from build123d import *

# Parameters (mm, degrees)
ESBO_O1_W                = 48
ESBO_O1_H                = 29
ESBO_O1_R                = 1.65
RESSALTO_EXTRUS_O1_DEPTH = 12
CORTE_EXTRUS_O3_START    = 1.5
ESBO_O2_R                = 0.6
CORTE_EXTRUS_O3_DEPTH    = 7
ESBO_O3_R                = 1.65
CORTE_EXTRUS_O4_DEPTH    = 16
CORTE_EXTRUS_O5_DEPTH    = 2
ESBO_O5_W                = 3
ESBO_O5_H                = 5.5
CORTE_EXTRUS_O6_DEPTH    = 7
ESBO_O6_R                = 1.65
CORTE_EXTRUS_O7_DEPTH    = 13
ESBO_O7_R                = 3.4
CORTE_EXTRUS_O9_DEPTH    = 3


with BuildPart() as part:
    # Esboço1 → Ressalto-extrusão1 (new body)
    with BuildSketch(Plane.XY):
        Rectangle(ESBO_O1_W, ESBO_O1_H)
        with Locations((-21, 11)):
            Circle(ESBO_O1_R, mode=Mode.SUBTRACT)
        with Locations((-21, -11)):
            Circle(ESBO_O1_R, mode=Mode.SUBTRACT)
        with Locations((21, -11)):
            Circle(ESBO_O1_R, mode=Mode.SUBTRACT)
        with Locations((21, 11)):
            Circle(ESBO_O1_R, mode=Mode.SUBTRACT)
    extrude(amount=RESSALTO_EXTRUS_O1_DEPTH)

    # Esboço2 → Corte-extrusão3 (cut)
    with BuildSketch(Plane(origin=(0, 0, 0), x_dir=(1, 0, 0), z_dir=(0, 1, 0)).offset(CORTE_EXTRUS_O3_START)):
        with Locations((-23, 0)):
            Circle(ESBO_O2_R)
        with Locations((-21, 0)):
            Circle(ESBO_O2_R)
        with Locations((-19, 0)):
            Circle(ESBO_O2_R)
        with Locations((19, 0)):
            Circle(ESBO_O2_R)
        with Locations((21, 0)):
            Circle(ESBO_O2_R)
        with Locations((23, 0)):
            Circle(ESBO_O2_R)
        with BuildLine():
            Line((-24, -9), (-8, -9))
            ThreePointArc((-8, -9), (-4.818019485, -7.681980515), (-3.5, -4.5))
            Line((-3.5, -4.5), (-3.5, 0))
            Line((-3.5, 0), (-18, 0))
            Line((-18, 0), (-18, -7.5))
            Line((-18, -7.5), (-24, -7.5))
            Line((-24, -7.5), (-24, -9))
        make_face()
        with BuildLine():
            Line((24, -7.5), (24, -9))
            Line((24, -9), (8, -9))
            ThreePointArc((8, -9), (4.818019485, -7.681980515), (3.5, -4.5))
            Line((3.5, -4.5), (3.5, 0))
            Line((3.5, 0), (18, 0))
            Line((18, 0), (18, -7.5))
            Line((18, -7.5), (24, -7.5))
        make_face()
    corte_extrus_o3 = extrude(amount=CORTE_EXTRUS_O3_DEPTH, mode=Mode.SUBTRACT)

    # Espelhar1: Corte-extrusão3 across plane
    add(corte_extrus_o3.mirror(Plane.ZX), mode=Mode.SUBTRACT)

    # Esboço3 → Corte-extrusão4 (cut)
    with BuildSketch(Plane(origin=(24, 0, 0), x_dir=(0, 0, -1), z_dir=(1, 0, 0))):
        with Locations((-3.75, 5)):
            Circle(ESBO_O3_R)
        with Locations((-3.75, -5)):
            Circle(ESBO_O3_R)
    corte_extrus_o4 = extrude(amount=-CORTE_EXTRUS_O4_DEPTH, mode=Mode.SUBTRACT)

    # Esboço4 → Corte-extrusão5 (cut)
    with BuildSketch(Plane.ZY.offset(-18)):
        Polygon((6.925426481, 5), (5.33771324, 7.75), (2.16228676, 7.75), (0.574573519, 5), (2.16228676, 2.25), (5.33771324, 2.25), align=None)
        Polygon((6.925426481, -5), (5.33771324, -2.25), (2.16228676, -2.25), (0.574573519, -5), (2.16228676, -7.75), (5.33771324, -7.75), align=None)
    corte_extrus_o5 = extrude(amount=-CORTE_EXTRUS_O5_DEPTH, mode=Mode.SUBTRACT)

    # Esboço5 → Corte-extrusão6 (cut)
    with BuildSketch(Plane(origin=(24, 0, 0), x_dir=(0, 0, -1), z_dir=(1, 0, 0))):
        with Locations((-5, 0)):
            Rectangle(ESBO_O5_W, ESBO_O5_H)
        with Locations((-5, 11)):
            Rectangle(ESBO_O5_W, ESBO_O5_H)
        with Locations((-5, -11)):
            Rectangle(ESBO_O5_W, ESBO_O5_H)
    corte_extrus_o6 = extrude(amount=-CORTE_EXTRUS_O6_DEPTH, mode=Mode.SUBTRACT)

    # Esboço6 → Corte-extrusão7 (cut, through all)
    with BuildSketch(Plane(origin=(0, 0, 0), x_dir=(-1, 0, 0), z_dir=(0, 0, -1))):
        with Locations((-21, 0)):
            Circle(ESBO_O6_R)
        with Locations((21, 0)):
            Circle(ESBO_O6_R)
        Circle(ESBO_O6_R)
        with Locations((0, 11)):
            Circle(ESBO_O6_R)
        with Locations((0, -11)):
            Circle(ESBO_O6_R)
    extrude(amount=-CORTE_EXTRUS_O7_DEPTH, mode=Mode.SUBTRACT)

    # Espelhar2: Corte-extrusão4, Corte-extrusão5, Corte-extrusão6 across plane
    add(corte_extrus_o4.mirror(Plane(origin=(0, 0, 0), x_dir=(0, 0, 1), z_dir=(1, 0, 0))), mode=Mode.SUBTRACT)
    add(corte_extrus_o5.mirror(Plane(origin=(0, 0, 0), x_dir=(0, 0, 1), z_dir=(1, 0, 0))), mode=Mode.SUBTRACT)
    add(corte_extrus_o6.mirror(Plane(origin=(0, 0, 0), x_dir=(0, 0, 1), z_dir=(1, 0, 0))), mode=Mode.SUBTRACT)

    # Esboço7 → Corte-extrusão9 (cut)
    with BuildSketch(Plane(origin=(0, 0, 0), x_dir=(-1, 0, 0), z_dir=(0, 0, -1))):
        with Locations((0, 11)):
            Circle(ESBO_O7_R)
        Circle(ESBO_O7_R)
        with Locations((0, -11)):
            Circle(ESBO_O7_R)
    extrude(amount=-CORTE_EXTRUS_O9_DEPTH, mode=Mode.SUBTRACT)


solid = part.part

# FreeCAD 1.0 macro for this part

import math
import FreeCAD as App
import Part
import Sketcher

V = App.Vector
Q = App.Units.Quantity

doc = App.newDocument("Part")
params = doc.addObject("Spreadsheet::Sheet", "Params")
for row, (alias, value) in enumerate([
    ("sketch1_diameter", "3.3 mm"),
    ("sketch1_width", "48 mm"),
    ("sketch1_height", "29 mm"),
    ("pad1_length", "12 mm"),
    ("sketch2_diameter", "1.2 mm"),
    ("sketch2_radius", "4.5 mm"),
    ("sketch2_width", "16 mm"),
    ("sketch2_width2", "6 mm"),
    ("sketch2_height", "4.5 mm"),
    ("pocket1_length", "7 mm"),
    ("sketch3_diameter", "3.3 mm"),
    ("pocket2_length", "16 mm"),
    ("pocket3_length", "2 mm"),
    ("sketch5_height", "3 mm"),
    ("sketch5_width", "5.5 mm"),
    ("pocket4_length", "7 mm"),
    ("sketch6_diameter", "3.3 mm"),
    ("sketch7_diameter", "6.8 mm"),
    ("pocket6_length", "3 mm"),
], start=1):
    params.set(f"A{row}", alias)
    params.set(f"B{row}", "=" + value)
    params.setAlias(f"B{row}", alias)

body = doc.addObject("PartDesign::Body", "Body")

# Sketch on XY plane
sketch1 = body.newObject("Sketcher::SketchObject", "Sketch")
sketch1.AttachmentSupport = (doc.getObject("XY_Plane"), [""])
sketch1.MapMode = "FlatFace"
sketch1.addGeometry([
    Part.LineSegment(V(-24, 14.5, 0), V(-24, -14.5, 0)),  # 0
    Part.LineSegment(V(-24, -14.5, 0), V(24, -14.5, 0)),  # 1
    Part.LineSegment(V(24, -14.5, 0), V(24, 14.5, 0)),  # 2
    Part.LineSegment(V(24, 14.5, 0), V(-24, 14.5, 0)),  # 3
    Part.Circle(V(-21, -11, 0), V(0, 0, 1), 1.6),  # 4
    Part.Circle(V(21, -11, 0), V(0, 0, 1), 1.6),  # 5
    Part.Circle(V(-21, 11, 0), V(0, 0, 1), 1.6),  # 6
    Part.Circle(V(21, 11, 0), V(0, 0, 1), 1.6),  # 7
], False)
sketch1.addConstraint([
    Sketcher.Constraint("Coincident", 0, 2, 1, 1),
    Sketcher.Constraint("Coincident", 1, 2, 2, 1),
    Sketcher.Constraint("Coincident", 2, 2, 3, 1),
    Sketcher.Constraint("Coincident", 3, 2, 0, 1),
    Sketcher.Constraint("Vertical", 0),
    Sketcher.Constraint("Horizontal", 1),
    Sketcher.Constraint("Vertical", 2),
    Sketcher.Constraint("Horizontal", 3),
    Sketcher.Constraint("Equal", 4, 5),
    Sketcher.Constraint("Equal", 5, 6),
    Sketcher.Constraint("Equal", 6, 7),
    Sketcher.Constraint("Symmetric", 5, 3, 6, 3, -1, 1),
    Sketcher.Constraint("Symmetric", 4, 3, 7, 3, -1, 1),
    Sketcher.Constraint("Symmetric", 0, 2, 2, 2, -1, 1),
    Sketcher.Constraint("Symmetric", 4, 3, 5, 3, -2),
    Sketcher.Constraint("Diameter", 4, Q("3.3 mm")),
    Sketcher.Constraint("DistanceX", 1, 1, 1, 2, Q("48 mm")),
    Sketcher.Constraint("DistanceY", 0, 2, 0, 1, Q("29 mm")),
    Sketcher.Constraint("DistanceX", 4, 3, -1, 1, Q("21 mm")),
    Sketcher.Constraint("DistanceY", 4, 3, -1, 1, Q("11 mm")),
])
sketch1.setExpression("Constraints[15]", "Params.sketch1_diameter")
sketch1.setExpression("Constraints[16]", "Params.sketch1_width")
sketch1.setExpression("Constraints[17]", "Params.sketch1_height")
pad1 = body.newObject("PartDesign::Pad", "Pad")
pad1.Profile = sketch1
pad1.setExpression("Length", "Params.pad1_length")

# Sketch on XZ plane
sketch2 = body.newObject("Sketcher::SketchObject", "Sketch001")
sketch2.AttachmentSupport = (doc.getObject("XZ_Plane"), [""])
sketch2.MapMode = "FlatFace"
sketch2.AttachmentOffset = App.Placement(V(0, 0, -1.5), App.Rotation())
sketch2.addGeometry([
    Part.Circle(V(-23, 0, 0), V(0, 0, 1), 0.6),  # 0
    Part.Circle(V(-21, 0, 0), V(0, 0, 1), 0.6),  # 1
    Part.Circle(V(-19, 0, 0), V(0, 0, 1), 0.6),  # 2
    Part.Circle(V(19, 0, 0), V(0, 0, 1), 0.6),  # 3
    Part.Circle(V(21, 0, 0), V(0, 0, 1), 0.6),  # 4
    Part.Circle(V(23, 0, 0), V(0, 0, 1), 0.6),  # 5
    Part.LineSegment(V(-24, 9, 0), V(-8, 9, 0)),  # 6
    Part.ArcOfCircle(Part.Circle(V(-8, 4.5, 0), V(0, 0, 1), 4.5), math.radians(0), math.radians(90)),  # 7
    Part.LineSegment(V(-3.5, 4.5, 0), V(-3.5, 0, 0)),  # 8
    Part.LineSegment(V(-3.5, 0, 0), V(-18, 0, 0)),  # 9
    Part.LineSegment(V(-18, 0, 0), V(-18, 7.5, 0)),  # 10
    Part.LineSegment(V(-18, 7.5, 0), V(-24, 7.5, 0)),  # 11
    Part.LineSegment(V(-24, 7.5, 0), V(-24, 9, 0)),  # 12
    Part.LineSegment(V(24, 9, 0), V(24, 7.5, 0)),  # 13
    Part.LineSegment(V(24, 7.5, 0), V(18, 7.5, 0)),  # 14
    Part.LineSegment(V(18, 7.5, 0), V(18, 0, 0)),  # 15
    Part.LineSegment(V(18, 0, 0), V(3.5, 0, 0)),  # 16
    Part.LineSegment(V(3.5, 0, 0), V(3.5, 4.5, 0)),  # 17
    Part.ArcOfCircle(Part.Circle(V(8, 4.5, 0), V(0, 0, 1), 4.5), math.radians(90), math.radians(180)),  # 18
    Part.LineSegment(V(8, 9, 0), V(24, 9, 0)),  # 19
], False)
sketch2.addConstraint([
    Sketcher.Constraint("Tangent", 6, 2, 7, 2),
    Sketcher.Constraint("Tangent", 7, 1, 8, 1),
    Sketcher.Constraint("Coincident", 8, 2, 9, 1),
    Sketcher.Constraint("Coincident", 9, 2, 10, 1),
    Sketcher.Constraint("Coincident", 10, 2, 11, 1),
    Sketcher.Constraint("Coincident", 11, 2, 12, 1),
    Sketcher.Constraint("Coincident", 12, 2, 6, 1),
    Sketcher.Constraint("Coincident", 13, 2, 14, 1),
    Sketcher.Constraint("Coincident", 14, 2, 15, 1),
    Sketcher.Constraint("Coincident", 15, 2, 16, 1),
    Sketcher.Constraint("Coincident", 16, 2, 17, 1),
    Sketcher.Constraint("Tangent", 17, 2, 18, 2),
    Sketcher.Constraint("Tangent", 18, 1, 19, 1),
    Sketcher.Constraint("Coincident", 19, 2, 13, 1),
    Sketcher.Constraint("Horizontal", 6),
    Sketcher.Constraint("Vertical", 8),
    Sketcher.Constraint("Horizontal", 9),
    Sketcher.Constraint("Vertical", 10),
    Sketcher.Constraint("Horizontal", 11),
    Sketcher.Constraint("Vertical", 12),
    Sketcher.Constraint("Vertical", 13),
    Sketcher.Constraint("Horizontal", 14),
    Sketcher.Constraint("Vertical", 15),
    Sketcher.Constraint("Horizontal", 16),
    Sketcher.Constraint("Vertical", 17),
    Sketcher.Constraint("Horizontal", 19),
    Sketcher.Constraint("Equal", 0, 1),
    Sketcher.Constraint("Equal", 1, 2),
    Sketcher.Constraint("Equal", 2, 3),
    Sketcher.Constraint("Equal", 3, 4),
    Sketcher.Constraint("Equal", 4, 5),
    Sketcher.Constraint("Equal", 7, 18),
    Sketcher.Constraint("Symmetric", 2, 3, 3, 3, -1, 1),
    Sketcher.Constraint("Symmetric", 1, 3, 4, 3, -1, 1),
    Sketcher.Constraint("Symmetric", 0, 3, 5, 3, -1, 1),
    Sketcher.Constraint("Symmetric", 9, 2, 15, 2, -1, 1),
    Sketcher.Constraint("Symmetric", 7, 3, 18, 3, -2),
    Sketcher.Constraint("Symmetric", 11, 2, 13, 2, -2),
    Sketcher.Constraint("PointOnObject", 0, 3, -1),
    Sketcher.Constraint("PointOnObject", 1, 3, -1),
    Sketcher.Constraint("PointOnObject", 2, 3, -1),
    Sketcher.Constraint("PointOnObject", 8, 2, -1),
    Sketcher.Constraint("Diameter", 0, Q("1.2 mm")),
    Sketcher.Constraint("Radius", 7, Q("4.5 mm")),
    Sketcher.Constraint("DistanceX", 6, 1, 6, 2, Q("16 mm")),
    Sketcher.Constraint("DistanceX", 11, 2, 11, 1, Q("6 mm")),
    Sketcher.Constraint("DistanceY", 8, 2, 8, 1, Q("4.5 mm")),
    Sketcher.Constraint("DistanceY", 10, 1, 10, 2, Q("7.5 mm")),
    Sketcher.Constraint("DistanceX", 0, 3, -1, 1, Q("23 mm")),
    Sketcher.Constraint("DistanceX", 1, 3, -1, 1, Q("21 mm")),
    Sketcher.Constraint("DistanceX", 2, 3, -1, 1, Q("19 mm")),
    Sketcher.Constraint("DistanceX", 7, 3, -1, 1, Q("8 mm")),
])
sketch2.setExpression("Constraints[42]", "Params.sketch2_diameter")
sketch2.setExpression("Constraints[43]", "Params.sketch2_radius")
sketch2.setExpression("Constraints[44]", "Params.sketch2_width")
sketch2.setExpression("Constraints[45]", "Params.sketch2_width2")
sketch2.setExpression("Constraints[46]", "Params.sketch2_height")
pocket1 = body.newObject("PartDesign::Pocket", "Pocket")
pocket1.Profile = sketch2
pocket1.setExpression("Length", "Params.pocket1_length")
doc.recompute()

mirrored = body.newObject("PartDesign::Mirrored", "Mirrored")
mirrored.Originals = [pocket1]
mirrored.MirrorPlane = (doc.getObject("XZ_Plane"), [""])
body.Tip = mirrored

# Sketch on YZ plane
sketch3 = body.newObject("Sketcher::SketchObject", "Sketch002")
sketch3.AttachmentSupport = (doc.getObject("YZ_Plane"), [""])
sketch3.MapMode = "FlatFace"
sketch3.AttachmentOffset = App.Placement(V(0, 0, 24), App.Rotation())
sketch3.addGeometry([
    Part.Circle(V(5, 3.8, 0), V(0, 0, 1), 1.6),
    Part.Circle(V(-5, 3.8, 0), V(0, 0, 1), 1.6),
], False)
sketch3.addConstraint([
    Sketcher.Constraint("Equal", 0, 1),
    Sketcher.Constraint("Symmetric", 0, 3, 1, 3, -2),
    Sketcher.Constraint("Diameter", 0, Q("3.3 mm")),
    Sketcher.Constraint("DistanceX", -1, 1, 0, 3, Q("5 mm")),
    Sketcher.Constraint("DistanceY", -1, 1, 0, 3, Q("3.75 mm")),
])
sketch3.setExpression("Constraints[2]", "Params.sketch3_diameter")
pocket2 = body.newObject("PartDesign::Pocket", "Pocket001")
pocket2.Profile = sketch3
pocket2.setExpression("Length", "Params.pocket2_length")

# Sketch on YZ plane
sketch4 = body.newObject("Sketcher::SketchObject", "Sketch003")
sketch4.AttachmentSupport = (doc.getObject("YZ_Plane"), [""])
sketch4.MapMode = "FlatFace"
sketch4.AttachmentOffset = App.Placement(V(0, 0, 18), App.Rotation())
sketch4.addGeometry([
    Part.LineSegment(V(5, 6.9, 0), V(7.8, 5.3, 0)),  # 0
    Part.LineSegment(V(7.8, 5.3, 0), V(7.8, 2.2, 0)),  # 1
    Part.LineSegment(V(7.8, 2.2, 0), V(5, 0.6, 0)),  # 2
    Part.LineSegment(V(5, 0.6, 0), V(2.2, 2.2, 0)),  # 3
    Part.LineSegment(V(2.2, 2.2, 0), V(2.2, 5.3, 0)),  # 4
    Part.LineSegment(V(2.2, 5.3, 0), V(5, 6.9, 0)),  # 5
    Part.LineSegment(V(-5, 6.9, 0), V(-2.2, 5.3, 0)),  # 6
    Part.LineSegment(V(-2.2, 5.3, 0), V(-2.2, 2.2, 0)),  # 7
    Part.LineSegment(V(-2.2, 2.2, 0), V(-5, 0.6, 0)),  # 8
    Part.LineSegment(V(-5, 0.6, 0), V(-7.8, 2.2, 0)),  # 9
    Part.LineSegment(V(-7.8, 2.2, 0), V(-7.8, 5.3, 0)),  # 10
    Part.LineSegment(V(-7.8, 5.3, 0), V(-5, 6.9, 0)),  # 11
], False)
sketch4.addConstraint([
    Sketcher.Constraint("Coincident", 0, 2, 1, 1),
    Sketcher.Constraint("Coincident", 1, 2, 2, 1),
    Sketcher.Constraint("Coincident", 2, 2, 3, 1),
    Sketcher.Constraint("Coincident", 3, 2, 4, 1),
    Sketcher.Constraint("Coincident", 4, 2, 5, 1),
    Sketcher.Constraint("Coincident", 5, 2, 0, 1),
    Sketcher.Constraint("Coincident", 6, 2, 7, 1),
    Sketcher.Constraint("Coincident", 7, 2, 8, 1),
    Sketcher.Constraint("Coincident", 8, 2, 9, 1),
    Sketcher.Constraint("Coincident", 9, 2, 10, 1),
    Sketcher.Constraint("Coincident", 10, 2, 11, 1),
    Sketcher.Constraint("Coincident", 11, 2, 6, 1),
    Sketcher.Constraint("Vertical", 1),
    Sketcher.Constraint("Vertical", 4),
    Sketcher.Constraint("Vertical", 7),
    Sketcher.Constraint("Vertical", 10),
    Sketcher.Constraint("Symmetric", 4, 2, 6, 2, -2),
    Sketcher.Constraint("Symmetric", 2, 2, 8, 2, -2),
    Sketcher.Constraint("Symmetric", 1, 2, 9, 2, -2),
    Sketcher.Constraint("Symmetric", 5, 2, 11, 2, -2),
    Sketcher.Constraint("Parallel", 0, 3),
    Sketcher.Constraint("Parallel", 2, 5),
    Sketcher.Constraint("Parallel", 3, 6),
    Sketcher.Constraint("Parallel", 5, 8),
    Sketcher.Constraint("Parallel", 8, 11),
    Sketcher.Constraint("Horizontal", 1, 2, 3, 2),
    Sketcher.Constraint("Horizontal", 0, 2, 4, 2),
    Sketcher.Constraint("Angle", 0, Q("-30 deg")),
    Sketcher.Constraint("DistanceX", -1, 1, 2, 2, Q("5 mm")),
    Sketcher.Constraint("DistanceX", 3, 2, 1, 2, Q("5.5 mm")),
    Sketcher.Constraint("DistanceY", 1, 2, 1, 1, Q("3.175426 mm")),
    Sketcher.Constraint("DistanceY", -1, 1, 0, 2, Q("5.337713 mm")),
])
pocket3 = body.newObject("PartDesign::Pocket", "Pocket002")
pocket3.Profile = sketch4
pocket3.setExpression("Length", "Params.pocket3_length")
pocket3.Reversed = True

# Sketch on YZ plane
sketch5 = body.newObject("Sketcher::SketchObject", "Sketch004")
sketch5.AttachmentSupport = (doc.getObject("YZ_Plane"), [""])
sketch5.MapMode = "FlatFace"
sketch5.AttachmentOffset = App.Placement(V(0, 0, 24), App.Rotation())
sketch5.addGeometry([
    Part.LineSegment(V(2.8, 6.5, 0), V(-2.8, 6.5, 0)),  # 0
    Part.LineSegment(V(-2.8, 6.5, 0), V(-2.8, 3.5, 0)),  # 1
    Part.LineSegment(V(-2.8, 3.5, 0), V(2.8, 3.5, 0)),  # 2
    Part.LineSegment(V(2.8, 3.5, 0), V(2.8, 6.5, 0)),  # 3
    Part.LineSegment(V(13.8, 6.5, 0), V(8.2, 6.5, 0)),  # 4
    Part.LineSegment(V(8.2, 6.5, 0), V(8.2, 3.5, 0)),  # 5
    Part.LineSegment(V(8.2, 3.5, 0), V(13.8, 3.5, 0)),  # 6
    Part.LineSegment(V(13.8, 3.5, 0), V(13.8, 6.5, 0)),  # 7
    Part.LineSegment(V(-8.2, 6.5, 0), V(-13.8, 6.5, 0)),  # 8
    Part.LineSegment(V(-13.8, 6.5, 0), V(-13.8, 3.5, 0)),  # 9
    Part.LineSegment(V(-13.8, 3.5, 0), V(-8.2, 3.5, 0)),  # 10
    Part.LineSegment(V(-8.2, 3.5, 0), V(-8.2, 6.5, 0)),  # 11
], False)
sketch5.addConstraint([
    Sketcher.Constraint("Coincident", 0, 2, 1, 1),
    Sketcher.Constraint("Coincident", 1, 2, 2, 1),
    Sketcher.Constraint("Coincident", 2, 2, 3, 1),
    Sketcher.Constraint("Coincident", 3, 2, 0, 1),
    Sketcher.Constraint("Coincident", 4, 2, 5, 1),
    Sketcher.Constraint("Coincident", 5, 2, 6, 1),
    Sketcher.Constraint("Coincident", 6, 2, 7, 1),
    Sketcher.Constraint("Coincident", 7, 2, 4, 1),
    Sketcher.Constraint("Coincident", 8, 2, 9, 1),
    Sketcher.Constraint("Coincident", 9, 2, 10, 1),
    Sketcher.Constraint("Coincident", 10, 2, 11, 1),
    Sketcher.Constraint("Coincident", 11, 2, 8, 1),
    Sketcher.Constraint("Horizontal", 0),
    Sketcher.Constraint("Vertical", 1),
    Sketcher.Constraint("Horizontal", 2),
    Sketcher.Constraint("Vertical", 3),
    Sketcher.Constraint("Horizontal", 4),
    Sketcher.Constraint("Vertical", 5),
    Sketcher.Constraint("Horizontal", 6),
    Sketcher.Constraint("Vertical", 7),
    Sketcher.Constraint("Horizontal", 8),
    Sketcher.Constraint("Vertical", 9),
    Sketcher.Constraint("Horizontal", 10),
    Sketcher.Constraint("Vertical", 11),
    Sketcher.Constraint("Symmetric", 7, 2, 8, 2, -2),
    Sketcher.Constraint("Symmetric", 5, 2, 10, 2, -2),
    Sketcher.Constraint("Horizontal", 3, 2, 4, 2),
    Sketcher.Constraint("Horizontal", 2, 2, 5, 2),
    Sketcher.Constraint("Equal", 2, 4),
    Sketcher.Constraint("DistanceY", 1, 2, 1, 1, Q("3 mm")),
    Sketcher.Constraint("DistanceX", 0, 2, 0, 1, Q("5.5 mm")),
    Sketcher.Constraint("DistanceX", 0, 2, 4, 2, Q("11 mm")),
    Sketcher.Constraint("DistanceX", 8, 2, 0, 2, Q("11 mm")),
    Sketcher.Constraint("DistanceY", -1, 1, 0, 2, Q("6.5 mm")),
])
sketch5.setExpression("Constraints[29]", "Params.sketch5_height")
sketch5.setExpression("Constraints[30]", "Params.sketch5_width")
pocket4 = body.newObject("PartDesign::Pocket", "Pocket003")
pocket4.Profile = sketch5
pocket4.setExpression("Length", "Params.pocket4_length")

# Sketch on XY plane
sketch6 = body.newObject("Sketcher::SketchObject", "Sketch005")
sketch6.AttachmentSupport = (doc.getObject("XY_Plane"), [""])
sketch6.MapMode = "FlatFace"
sketch6.addGeometry([
    Part.Circle(V(21, 0, 0), V(0, 0, 1), 1.6),  # 0
    Part.Circle(V(-21, 0, 0), V(0, 0, 1), 1.6),  # 1
    Part.Circle(V(0, 0, 0), V(0, 0, 1), 1.6),  # 2
    Part.Circle(V(0, 11, 0), V(0, 0, 1), 1.6),  # 3
    Part.Circle(V(0, -11, 0), V(0, 0, 1), 1.6),  # 4
], False)
sketch6.addConstraint([
    Sketcher.Constraint("Coincident", 2, 3, -1, 1),
    Sketcher.Constraint("Equal", 0, 1),
    Sketcher.Constraint("Equal", 1, 2),
    Sketcher.Constraint("Equal", 2, 3),
    Sketcher.Constraint("Equal", 3, 4),
    Sketcher.Constraint("Symmetric", 0, 3, 1, 3, -1, 1),
    Sketcher.Constraint("Symmetric", 3, 3, 4, 3, -1, 1),
    Sketcher.Constraint("PointOnObject", 0, 3, -1),
    Sketcher.Constraint("PointOnObject", 3, 3, -2),
    Sketcher.Constraint("Diameter", 0, Q("3.3 mm")),
    Sketcher.Constraint("DistanceX", -1, 1, 0, 3, Q("21 mm")),
    Sketcher.Constraint("DistanceY", -1, 1, 3, 3, Q("11 mm")),
])
sketch6.setExpression("Constraints[9]", "Params.sketch6_diameter")
pocket5 = body.newObject("PartDesign::Pocket", "Pocket004")
pocket5.Profile = sketch6
pocket5.Type = "ThroughAll"
pocket5.Reversed = True
doc.recompute()

mirrored2 = body.newObject("PartDesign::Mirrored", "Mirrored001")
mirrored2.Originals = [pocket2, pocket3, pocket4]
mirrored2.MirrorPlane = (doc.getObject("YZ_Plane"), [""])
body.Tip = mirrored2

# Sketch on XY plane
sketch7 = body.newObject("Sketcher::SketchObject", "Sketch006")
sketch7.AttachmentSupport = (doc.getObject("XY_Plane"), [""])
sketch7.MapMode = "FlatFace"
sketch7.addGeometry([
    Part.Circle(V(0, 11, 0), V(0, 0, 1), 3.4),
    Part.Circle(V(0, 0, 0), V(0, 0, 1), 3.4),
    Part.Circle(V(0, -11, 0), V(0, 0, 1), 3.4),
], False)
sketch7.addConstraint([
    Sketcher.Constraint("Coincident", 1, 3, -1, 1),
    Sketcher.Constraint("Equal", 0, 1),
    Sketcher.Constraint("Equal", 1, 2),
    Sketcher.Constraint("Symmetric", 0, 3, 2, 3, -1, 1),
    Sketcher.Constraint("PointOnObject", 0, 3, -2),
    Sketcher.Constraint("Diameter", 0, Q("6.8 mm")),
    Sketcher.Constraint("DistanceY", -1, 1, 0, 3, Q("11 mm")),
])
sketch7.setExpression("Constraints[5]", "Params.sketch7_diameter")
pocket6 = body.newObject("PartDesign::Pocket", "Pocket005")
pocket6.Profile = sketch7
pocket6.setExpression("Length", "Params.pocket6_length")
pocket6.Reversed = True

doc.recompute()
